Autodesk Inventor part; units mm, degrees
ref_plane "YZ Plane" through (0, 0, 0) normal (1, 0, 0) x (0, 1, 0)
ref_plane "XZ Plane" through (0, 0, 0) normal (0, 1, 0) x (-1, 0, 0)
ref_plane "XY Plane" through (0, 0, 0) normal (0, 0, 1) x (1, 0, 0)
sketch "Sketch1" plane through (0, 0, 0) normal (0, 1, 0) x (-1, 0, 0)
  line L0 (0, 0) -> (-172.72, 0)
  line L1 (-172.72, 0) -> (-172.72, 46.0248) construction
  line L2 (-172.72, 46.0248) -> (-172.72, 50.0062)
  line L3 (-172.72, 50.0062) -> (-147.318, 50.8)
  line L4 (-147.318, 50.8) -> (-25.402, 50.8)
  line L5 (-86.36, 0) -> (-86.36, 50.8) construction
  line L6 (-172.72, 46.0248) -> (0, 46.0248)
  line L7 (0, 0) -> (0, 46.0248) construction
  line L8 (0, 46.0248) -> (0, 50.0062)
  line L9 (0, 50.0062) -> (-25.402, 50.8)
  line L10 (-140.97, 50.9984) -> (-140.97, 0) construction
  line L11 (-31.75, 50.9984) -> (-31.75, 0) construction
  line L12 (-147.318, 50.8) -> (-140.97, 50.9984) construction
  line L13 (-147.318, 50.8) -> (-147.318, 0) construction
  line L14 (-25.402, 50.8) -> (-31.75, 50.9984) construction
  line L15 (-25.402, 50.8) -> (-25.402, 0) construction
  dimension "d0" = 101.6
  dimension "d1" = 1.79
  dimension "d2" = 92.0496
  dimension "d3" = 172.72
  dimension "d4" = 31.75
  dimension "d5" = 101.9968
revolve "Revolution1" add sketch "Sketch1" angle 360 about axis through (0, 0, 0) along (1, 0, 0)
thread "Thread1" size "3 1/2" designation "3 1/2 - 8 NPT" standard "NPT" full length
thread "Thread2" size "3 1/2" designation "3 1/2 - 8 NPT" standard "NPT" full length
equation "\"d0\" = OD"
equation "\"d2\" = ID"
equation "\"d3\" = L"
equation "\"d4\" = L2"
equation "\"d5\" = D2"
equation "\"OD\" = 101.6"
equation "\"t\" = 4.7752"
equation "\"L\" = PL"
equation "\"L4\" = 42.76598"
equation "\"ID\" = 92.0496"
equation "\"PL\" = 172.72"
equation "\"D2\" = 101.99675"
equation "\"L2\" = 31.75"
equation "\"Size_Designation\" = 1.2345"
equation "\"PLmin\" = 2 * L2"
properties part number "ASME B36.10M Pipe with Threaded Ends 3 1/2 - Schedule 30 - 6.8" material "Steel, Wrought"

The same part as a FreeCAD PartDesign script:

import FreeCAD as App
import Part
import Sketcher
from FreeCAD import Vector
Q = App.Units.Quantity


def add_polygon(sketch, points):
    """Adds a closed chain of lines whose ends are joined by coincident constraints."""
    first, n = sketch.GeometryCount, len(points)
    for a, b in zip(points, points[1:] + points[:1]):
        sketch.addGeometry(Part.LineSegment(App.Vector(*a, 0), App.Vector(*b, 0)), False)
    for i in range(n):
        sketch.addConstraint(Sketcher.Constraint("Coincident", first + i, 2, first + (i + 1) % n, 1))

doc = App.newDocument("Part")
body = doc.addObject("PartDesign::Body", "Body")

# Sketch on XZ plane
sketch1 = doc.addObject("Sketcher::SketchObject", "Sketch")
body.addObject(sketch1)
sketch1.AttachmentSupport = (doc.XZ_Plane, [""])
sketch1.MapMode = "FlatFace"
add_polygon(sketch1, [(172.72, 50.0062), (172.72, 46.0248), (0, 46.0248), (0, 50.0062), (25.402, 50.8), (147.318, 50.8)])  # lines 0-5
sketch1.addConstraint([
    Sketcher.Constraint("Vertical", 0),
    Sketcher.Constraint("Horizontal", 1),
    Sketcher.Constraint("Vertical", 2),
    Sketcher.Constraint("Horizontal", 4),
    Sketcher.Constraint("PointOnObject", 1, 2, -2),
    Sketcher.Constraint("Horizontal", 2, 2, 5, 2),
    Sketcher.Constraint("Equal", 3, 5),
    Sketcher.Constraint("DistanceX", 1, 2, 1, 1, Q("6.8 in")),
    Sketcher.Constraint("Angle", 3, Q("1.79 deg")),
    Sketcher.Constraint("DistanceY", -1, 1, 3, 2, Q("2 in")),
    Sketcher.Constraint("DistanceY", -1, 1, 0, 2, Q("1.812 in")),
    Sketcher.Constraint("DistanceY", -1, 1, 2, 2, Q("1.968748 in")),
])
revolution = doc.addObject("PartDesign::Revolution", "Revolution")
body.addObject(revolution)
revolution.Profile = sketch1
revolution.ReferenceAxis = (sketch1, ["H_Axis"])
revolution.Angle = 360

doc.recompute()
